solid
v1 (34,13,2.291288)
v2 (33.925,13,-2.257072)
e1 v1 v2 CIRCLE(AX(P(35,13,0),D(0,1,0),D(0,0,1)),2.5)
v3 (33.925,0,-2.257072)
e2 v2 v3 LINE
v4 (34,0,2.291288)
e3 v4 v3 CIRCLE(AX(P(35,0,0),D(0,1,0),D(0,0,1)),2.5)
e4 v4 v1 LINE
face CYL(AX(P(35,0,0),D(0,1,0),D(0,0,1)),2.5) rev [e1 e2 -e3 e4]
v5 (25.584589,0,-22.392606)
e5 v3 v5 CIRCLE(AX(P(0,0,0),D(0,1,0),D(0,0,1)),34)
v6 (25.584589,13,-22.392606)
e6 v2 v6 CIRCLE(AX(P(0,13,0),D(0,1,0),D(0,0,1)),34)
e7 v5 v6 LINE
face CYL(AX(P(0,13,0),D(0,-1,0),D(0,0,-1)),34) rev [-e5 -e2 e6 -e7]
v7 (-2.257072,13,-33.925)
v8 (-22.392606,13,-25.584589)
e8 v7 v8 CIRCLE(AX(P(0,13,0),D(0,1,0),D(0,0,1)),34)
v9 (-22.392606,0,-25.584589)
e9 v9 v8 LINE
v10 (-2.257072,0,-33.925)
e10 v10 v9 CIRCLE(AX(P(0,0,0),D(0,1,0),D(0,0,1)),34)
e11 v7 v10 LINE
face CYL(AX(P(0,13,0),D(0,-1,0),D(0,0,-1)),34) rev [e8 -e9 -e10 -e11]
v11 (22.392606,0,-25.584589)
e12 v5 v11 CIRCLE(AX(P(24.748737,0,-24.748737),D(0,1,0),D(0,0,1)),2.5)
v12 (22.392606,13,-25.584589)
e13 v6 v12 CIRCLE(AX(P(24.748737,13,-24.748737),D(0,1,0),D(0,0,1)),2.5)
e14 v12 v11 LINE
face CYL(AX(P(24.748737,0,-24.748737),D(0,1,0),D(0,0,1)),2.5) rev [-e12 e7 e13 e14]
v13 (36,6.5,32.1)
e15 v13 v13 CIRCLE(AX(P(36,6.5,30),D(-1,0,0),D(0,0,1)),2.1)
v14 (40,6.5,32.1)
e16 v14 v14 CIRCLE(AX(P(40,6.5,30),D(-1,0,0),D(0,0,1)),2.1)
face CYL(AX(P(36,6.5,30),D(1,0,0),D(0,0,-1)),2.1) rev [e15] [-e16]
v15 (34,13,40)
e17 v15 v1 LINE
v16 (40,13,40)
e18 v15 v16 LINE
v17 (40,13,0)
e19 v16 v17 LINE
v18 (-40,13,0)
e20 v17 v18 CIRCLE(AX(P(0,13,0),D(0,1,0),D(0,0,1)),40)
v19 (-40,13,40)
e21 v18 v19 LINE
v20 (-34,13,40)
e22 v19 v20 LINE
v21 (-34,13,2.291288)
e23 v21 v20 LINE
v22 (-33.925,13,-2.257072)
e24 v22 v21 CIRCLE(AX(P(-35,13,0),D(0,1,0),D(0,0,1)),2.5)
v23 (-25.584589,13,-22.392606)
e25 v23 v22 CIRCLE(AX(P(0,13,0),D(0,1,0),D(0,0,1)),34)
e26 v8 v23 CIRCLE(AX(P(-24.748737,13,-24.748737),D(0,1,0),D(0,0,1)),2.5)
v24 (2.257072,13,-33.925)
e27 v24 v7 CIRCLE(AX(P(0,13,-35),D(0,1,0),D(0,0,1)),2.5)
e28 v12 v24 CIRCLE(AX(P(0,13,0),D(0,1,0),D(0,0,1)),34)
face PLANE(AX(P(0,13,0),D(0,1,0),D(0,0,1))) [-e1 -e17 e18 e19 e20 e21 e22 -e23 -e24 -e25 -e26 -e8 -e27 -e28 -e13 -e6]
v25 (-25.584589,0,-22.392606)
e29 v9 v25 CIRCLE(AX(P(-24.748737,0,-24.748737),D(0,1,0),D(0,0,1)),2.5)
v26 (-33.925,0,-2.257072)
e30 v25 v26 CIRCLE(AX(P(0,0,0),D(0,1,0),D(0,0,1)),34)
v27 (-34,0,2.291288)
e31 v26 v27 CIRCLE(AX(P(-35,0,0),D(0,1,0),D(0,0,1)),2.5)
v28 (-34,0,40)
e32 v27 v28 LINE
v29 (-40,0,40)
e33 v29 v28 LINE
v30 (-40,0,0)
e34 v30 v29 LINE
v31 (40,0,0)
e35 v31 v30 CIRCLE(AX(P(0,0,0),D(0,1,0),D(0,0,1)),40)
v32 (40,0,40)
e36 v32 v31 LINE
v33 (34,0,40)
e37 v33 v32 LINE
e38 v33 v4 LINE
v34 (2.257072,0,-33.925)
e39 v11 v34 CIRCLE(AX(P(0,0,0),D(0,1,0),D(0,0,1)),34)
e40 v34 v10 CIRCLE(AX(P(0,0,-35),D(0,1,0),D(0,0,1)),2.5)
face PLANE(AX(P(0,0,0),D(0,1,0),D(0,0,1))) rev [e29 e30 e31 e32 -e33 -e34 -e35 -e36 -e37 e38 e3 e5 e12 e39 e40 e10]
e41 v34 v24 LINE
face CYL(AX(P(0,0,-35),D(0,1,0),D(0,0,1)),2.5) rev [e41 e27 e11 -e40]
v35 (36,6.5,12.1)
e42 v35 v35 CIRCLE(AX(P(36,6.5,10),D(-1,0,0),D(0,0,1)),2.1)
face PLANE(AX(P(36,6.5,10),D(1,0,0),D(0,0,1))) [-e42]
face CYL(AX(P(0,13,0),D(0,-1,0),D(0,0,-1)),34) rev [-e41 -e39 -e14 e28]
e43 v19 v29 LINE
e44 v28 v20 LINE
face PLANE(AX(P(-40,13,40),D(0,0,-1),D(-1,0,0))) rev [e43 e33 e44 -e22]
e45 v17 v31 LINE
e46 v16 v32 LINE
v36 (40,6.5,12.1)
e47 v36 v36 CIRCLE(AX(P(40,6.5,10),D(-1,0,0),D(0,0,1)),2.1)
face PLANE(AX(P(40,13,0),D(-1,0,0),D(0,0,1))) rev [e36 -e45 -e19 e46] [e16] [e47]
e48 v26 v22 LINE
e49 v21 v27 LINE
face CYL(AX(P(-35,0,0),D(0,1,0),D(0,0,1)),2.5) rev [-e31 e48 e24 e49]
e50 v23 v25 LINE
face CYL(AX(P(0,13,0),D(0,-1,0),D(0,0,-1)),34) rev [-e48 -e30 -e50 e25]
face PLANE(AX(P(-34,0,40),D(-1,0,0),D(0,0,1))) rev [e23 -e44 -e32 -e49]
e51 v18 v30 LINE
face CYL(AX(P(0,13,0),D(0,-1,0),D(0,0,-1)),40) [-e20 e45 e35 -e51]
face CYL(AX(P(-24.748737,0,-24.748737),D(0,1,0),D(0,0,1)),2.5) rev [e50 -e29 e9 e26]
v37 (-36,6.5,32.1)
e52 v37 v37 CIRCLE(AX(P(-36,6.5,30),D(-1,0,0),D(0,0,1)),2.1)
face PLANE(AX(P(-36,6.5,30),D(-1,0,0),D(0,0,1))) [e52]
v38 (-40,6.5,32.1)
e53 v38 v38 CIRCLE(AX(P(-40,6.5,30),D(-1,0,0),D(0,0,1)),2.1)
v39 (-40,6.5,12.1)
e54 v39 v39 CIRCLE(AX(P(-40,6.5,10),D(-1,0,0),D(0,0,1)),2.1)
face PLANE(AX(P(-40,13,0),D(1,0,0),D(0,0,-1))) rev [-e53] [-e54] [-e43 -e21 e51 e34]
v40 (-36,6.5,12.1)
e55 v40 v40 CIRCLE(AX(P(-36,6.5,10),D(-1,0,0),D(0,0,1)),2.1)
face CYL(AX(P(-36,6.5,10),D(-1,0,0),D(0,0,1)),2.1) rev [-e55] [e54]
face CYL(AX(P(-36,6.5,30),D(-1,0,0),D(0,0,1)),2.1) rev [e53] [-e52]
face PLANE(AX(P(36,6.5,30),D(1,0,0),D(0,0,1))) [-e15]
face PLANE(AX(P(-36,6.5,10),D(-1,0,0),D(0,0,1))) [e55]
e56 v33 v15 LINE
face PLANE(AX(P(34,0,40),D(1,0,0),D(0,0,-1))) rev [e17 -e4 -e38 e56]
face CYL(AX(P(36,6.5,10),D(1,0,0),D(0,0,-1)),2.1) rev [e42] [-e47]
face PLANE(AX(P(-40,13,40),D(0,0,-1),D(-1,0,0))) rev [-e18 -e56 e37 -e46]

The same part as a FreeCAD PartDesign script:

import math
import FreeCAD as App
import Part
import Sketcher
Q = App.Units.Quantity


def add_polygon(sketch, points):
    """Adds a closed chain of lines whose ends are joined by coincident constraints."""
    first, n = sketch.GeometryCount, len(points)
    for a, b in zip(points, points[1:] + points[:1]):
        sketch.addGeometry(Part.LineSegment(App.Vector(*a, 0), App.Vector(*b, 0)), False)
    for i in range(n):
        sketch.addConstraint(Sketcher.Constraint("Coincident", first + i, 2, first + (i + 1) % n, 1))

doc = App.newDocument("Part")
body = doc.addObject("PartDesign::Body", "Body")

# Sketch on XZ plane
sketch1 = body.newObject("Sketcher::SketchObject", "Sketch")
sketch1.AttachmentSupport = (doc.getObject("XZ_Plane"), [""])
sketch1.MapMode = "FlatFace"
sketch1.addGeometry([
    Part.LineSegment(App.Vector(-40, 0, 0), App.Vector(-40, 40, 0)),  # 0
    Part.LineSegment(App.Vector(-40, 40, 0), App.Vector(40, 40, 0)),  # 1
    Part.LineSegment(App.Vector(40, 40, 0), App.Vector(40, 0, 0)),  # 2
    Part.ArcOfCircle(Part.Circle(App.Vector(0, 0, 0), App.Vector(0, 0, 1), 40), math.radians(180), math.radians(360)),  # 3
    Part.Circle(App.Vector(0, 0, 0), App.Vector(0, 0, 1), 34),  # 4
], False)
sketch1.addConstraint([
    Sketcher.Constraint("Coincident", 0, 2, 1, 1),
    Sketcher.Constraint("Coincident", 1, 2, 2, 1),
    Sketcher.Constraint("Tangent", 2, 2, 3, 2),
    Sketcher.Constraint("Tangent", 3, 1, 0, 1),
    Sketcher.Constraint("Vertical", 0),
    Sketcher.Constraint("Horizontal", 1),
    Sketcher.Constraint("Vertical", 2),
    Sketcher.Constraint("Coincident", 3, 3, -1, 1),
    Sketcher.Constraint("Coincident", 4, 3, -1, 1),
    Sketcher.Constraint("Diameter", 4, Q("68 mm")),
    Sketcher.Constraint("Radius", 3, Q("40 mm")),
    Sketcher.Constraint("DistanceY", 0, 1, 0, 2, Q("40 mm")),
])
pad1 = body.newObject("PartDesign::Pad", "Pad")
pad1.Profile = sketch1
pad1.Length = 13
pad1.Reversed = True

# Sketch on XZ plane
sketch2 = body.newObject("Sketcher::SketchObject", "Sketch001")
sketch2.AttachmentSupport = (doc.getObject("XZ_Plane"), [""])
sketch2.MapMode = "FlatFace"
sketch2.AttachmentOffset = App.Placement(App.Vector(0, 0, -13), App.Rotation())
sketch2.addGeometry([
    Part.Circle(App.Vector(0, -35, 0), App.Vector(0, 0, 1), 2.5),  # 0
    Part.Circle(App.Vector(24.7, -24.7, 0), App.Vector(0, 0, 1), 2.5),  # 1
    Part.Circle(App.Vector(35, 0, 0), App.Vector(0, 0, 1), 2.5),  # 2
    Part.Circle(App.Vector(24.7, 24.7, 0), App.Vector(0, 0, 1), 2.5),  # 3
    Part.Circle(App.Vector(0, 35, 0), App.Vector(0, 0, 1), 2.5),  # 4
    Part.Circle(App.Vector(-24.7, 24.7, 0), App.Vector(0, 0, 1), 2.5),  # 5
    Part.Circle(App.Vector(-35, 0, 0), App.Vector(0, 0, 1), 2.5),  # 6
    Part.Circle(App.Vector(-24.7, -24.7, 0), App.Vector(0, 0, 1), 2.5),  # 7
], False)
sketch2.addConstraint([
    Sketcher.Constraint("Equal", 0, 1),
    Sketcher.Constraint("Equal", 1, 2),
    Sketcher.Constraint("Equal", 2, 3),
    Sketcher.Constraint("Equal", 3, 4),
    Sketcher.Constraint("Equal", 4, 5),
    Sketcher.Constraint("Equal", 5, 6),
    Sketcher.Constraint("Equal", 6, 7),
    Sketcher.Constraint("Symmetric", 0, 3, 4, 3, -1, 1),
    Sketcher.Constraint("Symmetric", 1, 3, 5, 3, -1, 1),
    Sketcher.Constraint("Symmetric", 2, 3, 6, 3, -1, 1),
    Sketcher.Constraint("Symmetric", 3, 3, 7, 3, -1, 1),
    Sketcher.Constraint("Symmetric", 3, 3, 5, 3, -2),
    Sketcher.Constraint("PointOnObject", 0, 3, -2),
    Sketcher.Constraint("PointOnObject", 2, 3, -1),
    Sketcher.Constraint("Diameter", 0, Q("5 mm")),
    Sketcher.Constraint("DistanceY", 0, 3, -1, 1, Q("35 mm")),
    Sketcher.Constraint("DistanceX", -1, 1, 2, 3, Q("35 mm")),
    Sketcher.Constraint("DistanceX", -1, 1, 1, 3, Q("24.748737 mm")),
    Sketcher.Constraint("DistanceY", 1, 3, -1, 1, Q("24.748737 mm")),
])
pocket1 = body.newObject("PartDesign::Pocket", "Pocket")
pocket1.Profile = sketch2
pocket1.Type = "ThroughAll"
pocket1.Reversed = True

# Sketch on XZ plane
sketch3 = body.newObject("Sketcher::SketchObject", "Sketch002")
sketch3.AttachmentSupport = (doc.getObject("XZ_Plane"), [""])
sketch3.MapMode = "FlatFace"
sketch3.AttachmentOffset = App.Placement(App.Vector(0, 0, -13), App.Rotation())
add_polygon(sketch3, [(-34, 0), (-34, 40), (34, 40), (34, 0)])  # lines 0-3
sketch3.addConstraint([
    Sketcher.Constraint("Vertical", 0),
    Sketcher.Constraint("Horizontal", 1),
    Sketcher.Constraint("Vertical", 2),
    Sketcher.Constraint("Horizontal", 3),
    Sketcher.Constraint("Symmetric", 2, 2, 3, 2, -1, 1),
    Sketcher.Constraint("DistanceX", 1, 1, 1, 2, Q("68 mm")),
    Sketcher.Constraint("DistanceY", 0, 1, 0, 2, Q("40 mm")),
])
pocket2 = body.newObject("PartDesign::Pocket", "Pocket001")
pocket2.Profile = sketch3
pocket2.Type = "ThroughAll"
pocket2.Reversed = True

# Sketch on YZ plane
sketch4 = body.newObject("Sketcher::SketchObject", "Sketch003")
sketch4.AttachmentSupport = (doc.getObject("YZ_Plane"), [""])
sketch4.MapMode = "FlatFace"
sketch4.AttachmentOffset = App.Placement(App.Vector(0, 0, -40), App.Rotation())
sketch4.addGeometry([
    Part.Circle(App.Vector(6.5, 10, 0), App.Vector(0, 0, 1), 2.1),
    Part.Circle(App.Vector(6.5, 30, 0), App.Vector(0, 0, 1), 2.1),
], False)
sketch4.addConstraint([
    Sketcher.Constraint("Equal", 0, 1),
    Sketcher.Constraint("Vertical", 0, 3, 1, 3),
    Sketcher.Constraint("Diameter", 0, Q("4.2 mm")),
    Sketcher.Constraint("DistanceY", -1, 1, 0, 3, Q("10 mm")),
    Sketcher.Constraint("DistanceY", -1, 1, 1, 3, Q("30 mm")),
    Sketcher.Constraint("DistanceX", -1, 1, 0, 3, Q("6.5 mm")),
])
pocket3 = body.newObject("PartDesign::Pocket", "Pocket002")
pocket3.Profile = sketch4
pocket3.Length = 4
pocket3.Reversed = True
doc.recompute()

mirrored = body.newObject("PartDesign::Mirrored", "Mirrored")
mirrored.Originals = [pocket3]
mirrored.MirrorPlane = (doc.getObject("YZ_Plane"), [""])
body.Tip = mirrored

doc.recompute()
